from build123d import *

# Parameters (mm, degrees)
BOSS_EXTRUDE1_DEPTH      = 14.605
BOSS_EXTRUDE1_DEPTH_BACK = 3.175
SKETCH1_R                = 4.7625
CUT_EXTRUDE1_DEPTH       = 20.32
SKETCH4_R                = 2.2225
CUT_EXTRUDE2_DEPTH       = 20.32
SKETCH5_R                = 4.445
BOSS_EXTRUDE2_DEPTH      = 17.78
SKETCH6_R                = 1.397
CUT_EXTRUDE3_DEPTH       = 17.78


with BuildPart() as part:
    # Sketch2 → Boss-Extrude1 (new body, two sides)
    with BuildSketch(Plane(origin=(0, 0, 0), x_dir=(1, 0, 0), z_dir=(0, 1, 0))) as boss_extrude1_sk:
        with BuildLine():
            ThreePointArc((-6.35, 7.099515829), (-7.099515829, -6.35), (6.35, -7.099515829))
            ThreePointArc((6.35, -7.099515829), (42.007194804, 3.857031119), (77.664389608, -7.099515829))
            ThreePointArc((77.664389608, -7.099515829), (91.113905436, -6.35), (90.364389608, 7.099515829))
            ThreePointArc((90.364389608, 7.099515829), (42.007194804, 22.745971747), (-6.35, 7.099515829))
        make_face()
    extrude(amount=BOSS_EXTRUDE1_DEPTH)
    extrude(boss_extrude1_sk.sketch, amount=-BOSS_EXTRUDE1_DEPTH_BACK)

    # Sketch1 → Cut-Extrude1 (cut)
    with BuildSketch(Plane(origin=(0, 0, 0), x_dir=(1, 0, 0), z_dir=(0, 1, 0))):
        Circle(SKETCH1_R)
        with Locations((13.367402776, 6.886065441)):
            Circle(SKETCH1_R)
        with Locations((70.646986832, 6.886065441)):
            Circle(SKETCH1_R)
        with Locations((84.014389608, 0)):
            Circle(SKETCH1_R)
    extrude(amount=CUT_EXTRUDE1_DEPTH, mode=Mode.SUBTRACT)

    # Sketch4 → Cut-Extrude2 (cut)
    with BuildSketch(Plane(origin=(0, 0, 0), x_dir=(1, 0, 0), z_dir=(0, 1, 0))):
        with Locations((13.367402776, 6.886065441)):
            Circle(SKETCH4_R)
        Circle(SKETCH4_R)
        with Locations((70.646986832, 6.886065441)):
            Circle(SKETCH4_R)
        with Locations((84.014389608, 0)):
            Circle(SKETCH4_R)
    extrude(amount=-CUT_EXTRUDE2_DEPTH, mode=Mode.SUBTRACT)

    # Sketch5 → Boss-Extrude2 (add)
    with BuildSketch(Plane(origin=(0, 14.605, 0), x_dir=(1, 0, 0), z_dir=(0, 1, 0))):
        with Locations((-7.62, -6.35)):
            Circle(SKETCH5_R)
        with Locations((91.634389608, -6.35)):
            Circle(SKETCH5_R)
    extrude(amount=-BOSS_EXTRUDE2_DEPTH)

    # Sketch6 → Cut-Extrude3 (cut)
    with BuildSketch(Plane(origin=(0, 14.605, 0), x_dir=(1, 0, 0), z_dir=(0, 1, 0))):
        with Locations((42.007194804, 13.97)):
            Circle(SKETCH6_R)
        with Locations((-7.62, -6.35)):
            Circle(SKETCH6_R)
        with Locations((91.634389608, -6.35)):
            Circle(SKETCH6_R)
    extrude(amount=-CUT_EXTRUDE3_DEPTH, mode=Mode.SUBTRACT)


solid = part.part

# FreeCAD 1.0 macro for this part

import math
import FreeCAD as App
import Part
import Sketcher
from FreeCAD import Vector
Q = App.Units.Quantity

doc = App.newDocument("Part")
body = doc.addObject("PartDesign::Body", "Body")

# Sketch on XZ plane
sketch1 = body.newObject("Sketcher::SketchObject", "Sketch")
sketch1.AttachmentSupport = (doc.getObject("XZ_Plane"), [""])
sketch1.MapMode = "FlatFace"
sketch1.addGeometry([
    Part.ArcOfCircle(Part.Circle(Vector(0, 0, 0), Vector(0, 0, 1), 9.525), math.radians(48.189685), math.radians(228.189685)),
    Part.ArcOfCircle(Part.Circle(Vector(42.007195, 59.642969, 0), Vector(0, 0, 1), 63.5), math.radians(-124.161717), math.radians(-55.838283)),
    Part.ArcOfCircle(Part.Circle(Vector(84.01439, 0, 0), Vector(0, 0, 1), 9.525), math.radians(-48.189685), math.radians(131.810315)),
    Part.ArcOfCircle(Part.Circle(Vector(42.007195, 59.804028, 0), Vector(0, 0, 1), 82.55), math.radians(-125.859017), math.radians(-54.140983)),
], False)
sketch1.addConstraint([
    Sketcher.Constraint("Coincident", 0, 1, 1, 1),
    Sketcher.Constraint("Coincident", 1, 2, 2, 2),
    Sketcher.Constraint("Coincident", 2, 1, 3, 2),
    Sketcher.Constraint("Coincident", 3, 1, 0, 2),
    Sketcher.Constraint("Coincident", 0, 3, -1, 1),
    Sketcher.Constraint("Equal", 0, 2),
    Sketcher.Constraint("PointOnObject", 2, 3, -1),
    Sketcher.Constraint("Horizontal", 0, 1, 1, 2),
    Sketcher.Constraint("Horizontal", 2, 1, 3, 1),
    Sketcher.Constraint("Radius", 1, Q("2.5 in")),
    Sketcher.Constraint("Radius", 3, Q("3.25 in")),
    Sketcher.Constraint("Radius", 0, Q("0.375 in")),
    Sketcher.Constraint("DistanceX", 1, 2, 2, 1, Q("0.5 in")),
    Sketcher.Constraint("DistanceX", -1, 1, 0, 1, Q("0.25 in")),
    Sketcher.Constraint("DistanceY", -1, 1, 1, 3, Q("59.642969 mm")),
])
pad1 = body.newObject("PartDesign::Pad", "Pad")
pad1.Profile = sketch1
pad1.Type = "TwoLengths"
pad1.Length = Q("0.575 in")
pad1.Length2 = Q("0.125 in")
pad1.Reversed = True

# Sketch on XZ plane
sketch2 = body.newObject("Sketcher::SketchObject", "Sketch001")
sketch2.AttachmentSupport = (doc.getObject("XZ_Plane"), [""])
sketch2.MapMode = "FlatFace"
sketch2.addGeometry([
    Part.Circle(Vector(0, 0, 0), Vector(0, 0, 1), 4.7625),
    Part.Circle(Vector(13.367403, -6.886065, 0), Vector(0, 0, 1), 4.7625),
    Part.Circle(Vector(70.646987, -6.886065, 0), Vector(0, 0, 1), 4.7625),
    Part.Circle(Vector(84.01439, 0, 0), Vector(0, 0, 1), 4.7625),
], False)
sketch2.addConstraint([
    Sketcher.Constraint("Coincident", 0, 3, -1, 1),
    Sketcher.Constraint("Equal", 0, 1),
    Sketcher.Constraint("Equal", 1, 2),
    Sketcher.Constraint("Equal", 2, 3),
    Sketcher.Constraint("PointOnObject", 3, 3, -1),
    Sketcher.Constraint("Horizontal", 1, 3, 2, 3),
    Sketcher.Constraint("Diameter", 0, Q("0.375 in")),
    Sketcher.Constraint("DistanceX", -1, 1, 3, 3, Q("84.01439 mm")),
    Sketcher.Constraint("DistanceX", -1, 1, 1, 3, Q("13.367403 mm")),
    Sketcher.Constraint("DistanceY", 1, 3, -1, 1, Q("6.886065 mm")),
    Sketcher.Constraint("DistanceX", -1, 1, 2, 3, Q("70.646987 mm")),
])
pocket1 = body.newObject("PartDesign::Pocket", "Pocket")
pocket1.Profile = sketch2
pocket1.Length = Q("0.8 in")

# Sketch on XZ plane
sketch3 = body.newObject("Sketcher::SketchObject", "Sketch002")
sketch3.AttachmentSupport = (doc.getObject("XZ_Plane"), [""])
sketch3.MapMode = "FlatFace"
sketch3.addGeometry([
    Part.Circle(Vector(13.367403, -6.886065, 0), Vector(0, 0, 1), 2.2225),
    Part.Circle(Vector(0, 0, 0), Vector(0, 0, 1), 2.2225),
    Part.Circle(Vector(70.646987, -6.886065, 0), Vector(0, 0, 1), 2.2225),
    Part.Circle(Vector(84.01439, 0, 0), Vector(0, 0, 1), 2.2225),
], False)
sketch3.addConstraint([
    Sketcher.Constraint("Coincident", 1, 3, -1, 1),
    Sketcher.Constraint("Equal", 0, 1),
    Sketcher.Constraint("Equal", 1, 2),
    Sketcher.Constraint("Equal", 2, 3),
    Sketcher.Constraint("PointOnObject", 3, 3, -1),
    Sketcher.Constraint("Horizontal", 0, 3, 2, 3),
    Sketcher.Constraint("Diameter", 0, Q("0.175 in")),
    Sketcher.Constraint("DistanceX", -1, 1, 3, 3, Q("84.01439 mm")),
    Sketcher.Constraint("DistanceX", -1, 1, 0, 3, Q("13.367403 mm")),
    Sketcher.Constraint("DistanceY", 0, 3, -1, 1, Q("6.886065 mm")),
    Sketcher.Constraint("DistanceX", -1, 1, 2, 3, Q("70.646987 mm")),
])
pocket2 = body.newObject("PartDesign::Pocket", "Pocket001")
pocket2.Profile = sketch3
pocket2.Length = Q("0.8 in")
pocket2.Reversed = True

# Sketch on XZ plane
sketch4 = body.newObject("Sketcher::SketchObject", "Sketch003")
sketch4.AttachmentSupport = (doc.getObject("XZ_Plane"), [""])
sketch4.MapMode = "FlatFace"
sketch4.AttachmentOffset = App.Placement(Vector(0, 0, -0.575 * 25.4), App.Rotation())
sketch4.addGeometry([
    Part.Circle(Vector(-7.62, 6.35, 0), Vector(0, 0, 1), 4.445),
    Part.Circle(Vector(91.63439, 6.35, 0), Vector(0, 0, 1), 4.445),
], False)
sketch4.addConstraint([
    Sketcher.Constraint("Equal", 0, 1),
    Sketcher.Constraint("Horizontal", 0, 3, 1, 3),
    Sketcher.Constraint("Diameter", 0, Q("0.35 in")),
    Sketcher.Constraint("DistanceX", 0, 3, -1, 1, Q("0.3 in")),
    Sketcher.Constraint("DistanceY", -1, 1, 0, 3, Q("0.25 in")),
    Sketcher.Constraint("DistanceX", -1, 1, 1, 3, Q("91.63439 mm")),
])
pad2 = body.newObject("PartDesign::Pad", "Pad001")
pad2.Profile = sketch4
pad2.Length = Q("0.7 in")

# Sketch on XZ plane
sketch5 = body.newObject("Sketcher::SketchObject", "Sketch004")
sketch5.AttachmentSupport = (doc.getObject("XZ_Plane"), [""])
sketch5.MapMode = "FlatFace"
sketch5.AttachmentOffset = App.Placement(Vector(0, 0, -0.575 * 25.4), App.Rotation())
sketch5.addGeometry([
    Part.Circle(Vector(42.007195, -13.97, 0), Vector(0, 0, 1), 1.397),
    Part.Circle(Vector(-7.62, 6.35, 0), Vector(0, 0, 1), 1.397),
    Part.Circle(Vector(91.63439, 6.35, 0), Vector(0, 0, 1), 1.397),
], False)
sketch5.addConstraint([
    Sketcher.Constraint("Equal", 0, 1),
    Sketcher.Constraint("Equal", 1, 2),
    Sketcher.Constraint("Horizontal", 1, 3, 2, 3),
    Sketcher.Constraint("Diameter", 0, Q("0.11 in")),
    Sketcher.Constraint("DistanceX", 1, 3, -1, 1, Q("0.3 in")),
    Sketcher.Constraint("DistanceY", 0, 3, 1, 3, Q("0.8 in")),
    Sketcher.Constraint("DistanceY", 0, 3, -1, 1, Q("0.55 in")),
    Sketcher.Constraint("DistanceX", -1, 1, 2, 3, Q("91.63439 mm")),
    Sketcher.Constraint("DistanceX", -1, 1, 0, 3, Q("42.007195 mm")),
])
pocket3 = body.newObject("PartDesign::Pocket", "Pocket002")
pocket3.Profile = sketch5
pocket3.Length = Q("0.7 in")
pocket3.Reversed = True

doc.recompute()
